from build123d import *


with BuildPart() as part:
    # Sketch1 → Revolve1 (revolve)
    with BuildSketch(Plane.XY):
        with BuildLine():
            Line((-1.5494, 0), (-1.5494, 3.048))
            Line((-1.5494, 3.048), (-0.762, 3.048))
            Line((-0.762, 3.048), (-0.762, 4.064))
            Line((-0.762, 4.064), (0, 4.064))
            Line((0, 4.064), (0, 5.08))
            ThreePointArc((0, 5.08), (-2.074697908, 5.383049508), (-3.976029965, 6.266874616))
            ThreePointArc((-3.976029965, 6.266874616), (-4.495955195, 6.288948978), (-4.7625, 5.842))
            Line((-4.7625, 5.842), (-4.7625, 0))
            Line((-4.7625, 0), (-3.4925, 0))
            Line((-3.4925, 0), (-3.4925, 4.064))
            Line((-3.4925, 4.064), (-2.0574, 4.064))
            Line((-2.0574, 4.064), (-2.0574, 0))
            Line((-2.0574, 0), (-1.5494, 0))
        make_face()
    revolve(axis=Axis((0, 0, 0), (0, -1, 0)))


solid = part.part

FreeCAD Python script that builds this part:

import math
import FreeCAD as App
import Part
import Sketcher
Q = App.Units.Quantity

doc = App.newDocument("Part")
body = doc.addObject("PartDesign::Body", "Body")

# Sketch on XY plane
sketch1 = body.newObject("Sketcher::SketchObject", "Sketch")
sketch1.AttachmentSupport = (doc.getObject("XY_Plane"), [""])
sketch1.MapMode = "FlatFace"
sketch1.addGeometry(Part.LineSegment(App.Vector(-1.5494, 0, 0), App.Vector(-1.5494, 3.048, 0)), False)
sketch1.addGeometry(Part.LineSegment(App.Vector(-1.5494, 3.048, 0), App.Vector(-0.762, 3.048, 0)), False)
sketch1.addGeometry(Part.LineSegment(App.Vector(-0.762, 3.048, 0), App.Vector(-0.762, 4.064, 0)), False)
sketch1.addGeometry(Part.LineSegment(App.Vector(-0.762, 4.064, 0), App.Vector(0, 4.064, 0)), False)
sketch1.addGeometry(Part.LineSegment(App.Vector(0, 4.064, 0), App.Vector(0, 5.08, 0)), False)
sketch1.addGeometry(Part.ArcOfCircle(Part.Circle(App.Vector(0, 12.333288, 0), App.Vector(0, 0, 1), 7.253288), math.radians(-123.241514), math.radians(-90)), False)
sketch1.addGeometry(Part.ArcOfCircle(Part.Circle(App.Vector(-4.2545, 5.842, 0), App.Vector(0, 0, 1), 0.508), math.radians(56.758486), math.radians(180)), False)
sketch1.addGeometry(Part.LineSegment(App.Vector(-4.7625, 5.842, 0), App.Vector(-4.7625, 0, 0)), False)
sketch1.addGeometry(Part.LineSegment(App.Vector(-4.7625, 0, 0), App.Vector(-3.4925, 0, 0)), False)
sketch1.addGeometry(Part.LineSegment(App.Vector(-3.4925, 0, 0), App.Vector(-3.4925, 4.064, 0)), False)
sketch1.addGeometry(Part.LineSegment(App.Vector(-3.4925, 4.064, 0), App.Vector(-2.0574, 4.064, 0)), False)
sketch1.addGeometry(Part.LineSegment(App.Vector(-2.0574, 4.064, 0), App.Vector(-2.0574, 0, 0)), False)
sketch1.addGeometry(Part.LineSegment(App.Vector(-2.0574, 0, 0), App.Vector(-1.5494, 0, 0)), False)
sketch1.addConstraint(Sketcher.Constraint("Coincident", 0, 2, 1, 1))
sketch1.addConstraint(Sketcher.Constraint("Coincident", 1, 2, 2, 1))
sketch1.addConstraint(Sketcher.Constraint("Coincident", 2, 2, 3, 1))
sketch1.addConstraint(Sketcher.Constraint("Coincident", 3, 2, 4, 1))
sketch1.addConstraint(Sketcher.Constraint("Coincident", 4, 2, 5, 2))
sketch1.addConstraint(Sketcher.Constraint("Tangent", 5, 1, 6, 1))
sketch1.addConstraint(Sketcher.Constraint("Tangent", 6, 2, 7, 1))
sketch1.addConstraint(Sketcher.Constraint("Coincident", 7, 2, 8, 1))
sketch1.addConstraint(Sketcher.Constraint("Coincident", 8, 2, 9, 1))
sketch1.addConstraint(Sketcher.Constraint("Coincident", 9, 2, 10, 1))
sketch1.addConstraint(Sketcher.Constraint("Coincident", 10, 2, 11, 1))
sketch1.addConstraint(Sketcher.Constraint("Coincident", 11, 2, 12, 1))
sketch1.addConstraint(Sketcher.Constraint("Coincident", 12, 2, 0, 1))
sketch1.addConstraint(Sketcher.Constraint("Vertical", 0))
sketch1.addConstraint(Sketcher.Constraint("Horizontal", 1))
sketch1.addConstraint(Sketcher.Constraint("Vertical", 2))
sketch1.addConstraint(Sketcher.Constraint("Horizontal", 3))
sketch1.addConstraint(Sketcher.Constraint("Vertical", 4))
sketch1.addConstraint(Sketcher.Constraint("Vertical", 7))
sketch1.addConstraint(Sketcher.Constraint("Horizontal", 8))
sketch1.addConstraint(Sketcher.Constraint("Vertical", 9))
sketch1.addConstraint(Sketcher.Constraint("Horizontal", 10))
sketch1.addConstraint(Sketcher.Constraint("Vertical", 11))
sketch1.addConstraint(Sketcher.Constraint("Horizontal", 12))
sketch1.addConstraint(Sketcher.Constraint("PointOnObject", 5, 3, -2))
sketch1.addConstraint(Sketcher.Constraint("PointOnObject", 3, 2, -2))
sketch1.addConstraint(Sketcher.Constraint("PointOnObject", 7, 2, -1))
sketch1.addConstraint(Sketcher.Constraint("PointOnObject", 11, 2, -1))
sketch1.addConstraint(Sketcher.Constraint("Horizontal", 3, 2, 9, 2))
sketch1.addConstraint(Sketcher.Constraint("Equal", 2, 4))
sketch1.addConstraint(Sketcher.Constraint("Radius", 6, Q("0.02 in")))
sketch1.addConstraint(Sketcher.Constraint("DistanceX", 3, 1, 3, 2, Q("0.03 in")))
sketch1.addConstraint(Sketcher.Constraint("DistanceX", 8, 1, 8, 2, Q("0.05 in")))
sketch1.addConstraint(Sketcher.Constraint("DistanceX", 12, 1, 12, 2, Q("0.02 in")))
sketch1.addConstraint(Sketcher.Constraint("DistanceY", 0, 1, 0, 2, Q("0.12 in")))
sketch1.addConstraint(Sketcher.Constraint("DistanceY", 2, 1, 2, 2, Q("0.04 in")))
sketch1.addConstraint(Sketcher.Constraint("DistanceY", 7, 2, 7, 1, Q("0.23 in")))
sketch1.addConstraint(Sketcher.Constraint("DistanceX", 1, 1, 1, 2, Q("0.031 in")))
sketch1.addConstraint(Sketcher.Constraint("DistanceX", 10, 1, 10, 2, Q("0.0565 in")))
revolution = body.newObject("PartDesign::Revolution", "Revolution")
revolution.Profile = sketch1
revolution.ReferenceAxis = (sketch1, ["V_Axis"])
revolution.Angle = 360

doc.recompute()
